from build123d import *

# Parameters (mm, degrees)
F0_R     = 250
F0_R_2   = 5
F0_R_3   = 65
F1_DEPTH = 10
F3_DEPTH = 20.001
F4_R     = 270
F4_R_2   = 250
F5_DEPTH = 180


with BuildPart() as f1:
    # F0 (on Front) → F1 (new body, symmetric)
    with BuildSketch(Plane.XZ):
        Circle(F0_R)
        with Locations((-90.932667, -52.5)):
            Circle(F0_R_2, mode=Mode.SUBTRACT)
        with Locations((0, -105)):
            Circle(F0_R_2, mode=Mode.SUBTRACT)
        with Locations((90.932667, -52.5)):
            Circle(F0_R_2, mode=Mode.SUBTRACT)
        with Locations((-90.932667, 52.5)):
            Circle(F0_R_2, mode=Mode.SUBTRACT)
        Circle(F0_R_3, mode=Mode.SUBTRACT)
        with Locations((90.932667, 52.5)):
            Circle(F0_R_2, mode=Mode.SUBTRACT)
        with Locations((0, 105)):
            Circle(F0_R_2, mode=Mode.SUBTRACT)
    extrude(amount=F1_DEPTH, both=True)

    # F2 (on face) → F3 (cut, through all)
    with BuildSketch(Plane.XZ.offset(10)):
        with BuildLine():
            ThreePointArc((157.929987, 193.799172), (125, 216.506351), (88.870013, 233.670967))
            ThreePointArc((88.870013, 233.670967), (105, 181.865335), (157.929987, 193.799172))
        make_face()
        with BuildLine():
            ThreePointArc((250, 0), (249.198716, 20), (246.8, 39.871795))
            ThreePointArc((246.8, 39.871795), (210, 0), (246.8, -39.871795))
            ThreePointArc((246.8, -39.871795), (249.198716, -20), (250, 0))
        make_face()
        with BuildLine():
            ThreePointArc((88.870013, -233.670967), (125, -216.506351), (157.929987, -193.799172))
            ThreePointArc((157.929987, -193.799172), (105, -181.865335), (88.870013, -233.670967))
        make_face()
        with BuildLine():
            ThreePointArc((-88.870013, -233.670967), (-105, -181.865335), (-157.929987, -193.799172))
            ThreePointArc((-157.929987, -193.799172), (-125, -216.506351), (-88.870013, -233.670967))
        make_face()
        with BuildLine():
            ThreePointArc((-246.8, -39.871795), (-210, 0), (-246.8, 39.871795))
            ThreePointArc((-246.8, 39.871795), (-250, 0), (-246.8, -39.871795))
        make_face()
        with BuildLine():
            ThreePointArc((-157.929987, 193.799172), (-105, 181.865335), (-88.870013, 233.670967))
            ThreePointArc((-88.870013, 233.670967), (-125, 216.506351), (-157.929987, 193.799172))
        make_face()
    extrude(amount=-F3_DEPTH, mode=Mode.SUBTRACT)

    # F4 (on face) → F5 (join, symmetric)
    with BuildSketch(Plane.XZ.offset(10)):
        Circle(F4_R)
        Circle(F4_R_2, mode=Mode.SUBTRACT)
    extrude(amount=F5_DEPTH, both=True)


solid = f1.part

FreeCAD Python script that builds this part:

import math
import FreeCAD as App
import Part
import Sketcher
Q = App.Units.Quantity

doc = App.newDocument("Part")
body = doc.addObject("PartDesign::Body", "Body")

sketch1 = body.newObject("Sketcher::SketchObject", "Sketch")
sketch1.AttachmentSupport = (doc.getObject("XZ_Plane"), [""])
sketch1.MapMode = "FlatFace"
sketch1.addGeometry([
    Part.Circle(App.Vector(0, 0, 0), App.Vector(0, 0, 1), 250),
    Part.Circle(App.Vector(-91, -52, 0), App.Vector(0, 0, 1), 5),
    Part.Circle(App.Vector(0, -105, 0), App.Vector(0, 0, 1), 5),
    Part.Circle(App.Vector(91, -52, 0), App.Vector(0, 0, 1), 5),
    Part.Circle(App.Vector(-91, 52, 0), App.Vector(0, 0, 1), 5),
    Part.Circle(App.Vector(0, 0, 0), App.Vector(0, 0, 1), 65),
    Part.Circle(App.Vector(91, 52, 0), App.Vector(0, 0, 1), 5),
    Part.Circle(App.Vector(0, 105, 0), App.Vector(0, 0, 1), 5),
], False)
sketch1.addConstraint([
    Sketcher.Constraint("Coincident", 0, 3, -1, 1),
    Sketcher.Constraint("Coincident", 5, 3, -1, 1),
    Sketcher.Constraint("Equal", 1, 2),
    Sketcher.Constraint("Equal", 2, 3),
    Sketcher.Constraint("Equal", 3, 4),
    Sketcher.Constraint("Equal", 4, 6),
    Sketcher.Constraint("Equal", 6, 7),
    Sketcher.Constraint("Symmetric", 3, 3, 4, 3, -1, 1),
    Sketcher.Constraint("Symmetric", 1, 3, 6, 3, -1, 1),
    Sketcher.Constraint("Symmetric", 2, 3, 7, 3, -1, 1),
    Sketcher.Constraint("Symmetric", 1, 3, 3, 3, -2),
    Sketcher.Constraint("PointOnObject", 2, 3, -2),
    Sketcher.Constraint("Diameter", 0, Q("500 mm")),
    Sketcher.Constraint("Diameter", 1, Q("10 mm")),
    Sketcher.Constraint("Diameter", 5, Q("130 mm")),
    Sketcher.Constraint("DistanceY", 2, 3, -1, 1, Q("105 mm")),
    Sketcher.Constraint("DistanceY", 1, 3, 4, 3, Q("105 mm")),
    Sketcher.Constraint("DistanceX", 1, 3, -1, 1, Q("90.932667 mm")),
])
pad1 = body.newObject("PartDesign::Pad", "Pad")
pad1.Profile = sketch1
pad1.Length = 20
pad1.Midplane = True

sketch2 = body.newObject("Sketcher::SketchObject", "Sketch001")
sketch2.AttachmentSupport = (doc.getObject("XZ_Plane"), [""])
sketch2.MapMode = "FlatFace"
sketch2.AttachmentOffset = App.Placement(App.Vector(0, 0, 10), App.Rotation())
sketch2.addGeometry([
    Part.ArcOfCircle(Part.Circle(App.Vector(0.000005, 0.000011, 0), App.Vector(0, 0, 1), 249.999988), math.radians(50.822868), math.radians(69.177132)),
    Part.ArcOfCircle(Part.Circle(App.Vector(125, 216.506351, 0), App.Vector(0, 0, 1), 40), math.radians(154.588566), math.radians(325.411433)),
    Part.ArcOfCircle(Part.Circle(App.Vector(0.000023, 0.000002, 0), App.Vector(0, 0, 1), 249.999977), math.radians(-0.000001), math.radians(9.177132)),
    Part.ArcOfCircle(Part.Circle(App.Vector(250, 0, 0), App.Vector(0, 0, 1), 40), math.radians(94.588566), math.radians(265.411434)),
    Part.ArcOfCircle(Part.Circle(App.Vector(0.000023, -0.000002, 0), App.Vector(0, 0, 1), 249.999977), math.radians(-9.177132), math.radians(0.000001)),
    Part.ArcOfCircle(Part.Circle(App.Vector(0.000005, -0.000011, 0), App.Vector(0, 0, 1), 249.999988), math.radians(-69.177132), math.radians(-50.822868)),
    Part.ArcOfCircle(Part.Circle(App.Vector(125, -216.506351, 0), App.Vector(0, 0, 1), 40), math.radians(34.588567), math.radians(205.411434)),
    Part.ArcOfCircle(Part.Circle(App.Vector(-125, -216.506351, 0), App.Vector(0, 0, 1), 40), math.radians(-25.411434), math.radians(145.411433)),
    Part.ArcOfCircle(Part.Circle(App.Vector(-0.000005, -0.000011, 0), App.Vector(0, 0, 1), 249.999988), math.radians(-129.177132), math.radians(-110.822868)),
    Part.ArcOfCircle(Part.Circle(App.Vector(-250, 0, 0), App.Vector(0, 0, 1), 40), math.radians(-85.411434), math.radians(85.411434)),
    Part.ArcOfCircle(Part.Circle(App.Vector(0.000006, 0, 0), App.Vector(0, 0, 1), 250.000006), math.radians(170.822869), math.radians(189.177131)),
    Part.ArcOfCircle(Part.Circle(App.Vector(-125, 216.506351, 0), App.Vector(0, 0, 1), 40), math.radians(-145.411433), math.radians(25.411434)),
    Part.ArcOfCircle(Part.Circle(App.Vector(-0.000005, 0.000011, 0), App.Vector(0, 0, 1), 249.999988), math.radians(110.822868), math.radians(129.177132)),
], False)
sketch2.addConstraint([
    Sketcher.Constraint("Coincident", 0, 1, 1, 2),
    Sketcher.Constraint("Coincident", 1, 1, 0, 2),
    Sketcher.Constraint("Coincident", 2, 2, 3, 1),
    Sketcher.Constraint("Coincident", 3, 2, 4, 1),
    Sketcher.Constraint("Coincident", 4, 2, 2, 1),
    Sketcher.Constraint("Coincident", 5, 1, 6, 2),
    Sketcher.Constraint("Coincident", 6, 1, 5, 2),
    Sketcher.Constraint("Coincident", 7, 1, 8, 2),
    Sketcher.Constraint("Coincident", 8, 1, 7, 2),
    Sketcher.Constraint("Coincident", 9, 1, 10, 2),
    Sketcher.Constraint("Coincident", 10, 1, 9, 2),
    Sketcher.Constraint("Coincident", 11, 1, 12, 2),
    Sketcher.Constraint("Coincident", 12, 1, 11, 2),
    Sketcher.Constraint("Coincident", 10, 3, -1, 1),
    Sketcher.Constraint("Coincident", 4, 3, 2, 3),
    Sketcher.Constraint("Coincident", 4, 2, 3, 3),
    Sketcher.Constraint("PointOnObject", 3, 3, -1),
    Sketcher.Constraint("PointOnObject", 9, 3, -1),
    Sketcher.Constraint("Radius", 1, Q("40 mm")),
    Sketcher.Constraint("Radius", 3, Q("40 mm")),
    Sketcher.Constraint("Radius", 6, Q("40 mm")),
    Sketcher.Constraint("Radius", 7, Q("40 mm")),
    Sketcher.Constraint("Radius", 9, Q("40 mm")),
    Sketcher.Constraint("Radius", 11, Q("40 mm")),
    Sketcher.Constraint("DistanceX", -1, 1, 1, 3, Q("125 mm")),
    Sketcher.Constraint("DistanceX", -1, 1, 3, 3, Q("250 mm")),
    Sketcher.Constraint("DistanceX", -1, 1, 6, 3, Q("125 mm")),
    Sketcher.Constraint("DistanceX", 7, 3, -1, 1, Q("125 mm")),
    Sketcher.Constraint("DistanceX", 9, 3, -1, 1, Q("250 mm")),
    Sketcher.Constraint("DistanceX", 11, 3, -1, 1, Q("125 mm")),
    Sketcher.Constraint("DistanceX", -1, 1, 2, 2, Q("246.8 mm")),
    Sketcher.Constraint("DistanceX", 9, 1, -1, 1, Q("246.8 mm")),
    Sketcher.Constraint("Radius", 0, Q("249.999988 mm")),
    Sketcher.Constraint("Radius", 2, Q("249.999977 mm")),
    Sketcher.Constraint("Radius", 5, Q("249.999988 mm")),
    Sketcher.Constraint("Radius", 8, Q("249.999988 mm")),
    Sketcher.Constraint("Radius", 12, Q("249.999988 mm")),
    Sketcher.Constraint("DistanceY", -1, 1, 1, 3, Q("216.506351 mm")),
    Sketcher.Constraint("DistanceY", 6, 3, -1, 1, Q("216.506351 mm")),
    Sketcher.Constraint("DistanceY", 7, 3, -1, 1, Q("216.506351 mm")),
    Sketcher.Constraint("DistanceY", -1, 1, 11, 3, Q("216.506351 mm")),
    Sketcher.Constraint("DistanceY", -1, 1, 0, 1, Q("193.799172 mm")),
    Sketcher.Constraint("DistanceY", 8, 1, -1, 1, Q("193.799172 mm")),
    Sketcher.Constraint("DistanceY", 0, 3, 1, 3, Q("216.50634 mm")),
    Sketcher.Constraint("DistanceY", 6, 3, 5, 3, Q("216.50634 mm")),
    Sketcher.Constraint("DistanceY", 7, 3, 8, 3, Q("216.50634 mm")),
    Sketcher.Constraint("DistanceY", 6, 3, 6, 1, Q("22.707179 mm")),
    Sketcher.Constraint("DistanceY", 11, 1, 11, 3, Q("22.707179 mm")),
    Sketcher.Constraint("DistanceX", 11, 1, 12, 3, Q("157.929982 mm")),
])
pocket1 = body.newObject("PartDesign::Pocket", "Pocket")
pocket1.Profile = sketch2
pocket1.Type = "ThroughAll"

sketch3 = body.newObject("Sketcher::SketchObject", "Sketch002")
sketch3.AttachmentSupport = (doc.getObject("XZ_Plane"), [""])
sketch3.MapMode = "FlatFace"
sketch3.AttachmentOffset = App.Placement(App.Vector(0, 0, 10), App.Rotation())
sketch3.addGeometry([
    Part.Circle(App.Vector(0, 0, 0), App.Vector(0, 0, 1), 270),
    Part.Circle(App.Vector(0, 0, 0), App.Vector(0, 0, 1), 250),
], False)
sketch3.addConstraint([
    Sketcher.Constraint("Coincident", 0, 3, -1, 1),
    Sketcher.Constraint("Coincident", 1, 3, -1, 1),
    Sketcher.Constraint("Diameter", 0, Q("540 mm")),
    Sketcher.Constraint("Diameter", 1, Q("500 mm")),
])
pad2 = body.newObject("PartDesign::Pad", "Pad001")
pad2.Profile = sketch3
pad2.Length = 360
pad2.Midplane = True

doc.recompute()
